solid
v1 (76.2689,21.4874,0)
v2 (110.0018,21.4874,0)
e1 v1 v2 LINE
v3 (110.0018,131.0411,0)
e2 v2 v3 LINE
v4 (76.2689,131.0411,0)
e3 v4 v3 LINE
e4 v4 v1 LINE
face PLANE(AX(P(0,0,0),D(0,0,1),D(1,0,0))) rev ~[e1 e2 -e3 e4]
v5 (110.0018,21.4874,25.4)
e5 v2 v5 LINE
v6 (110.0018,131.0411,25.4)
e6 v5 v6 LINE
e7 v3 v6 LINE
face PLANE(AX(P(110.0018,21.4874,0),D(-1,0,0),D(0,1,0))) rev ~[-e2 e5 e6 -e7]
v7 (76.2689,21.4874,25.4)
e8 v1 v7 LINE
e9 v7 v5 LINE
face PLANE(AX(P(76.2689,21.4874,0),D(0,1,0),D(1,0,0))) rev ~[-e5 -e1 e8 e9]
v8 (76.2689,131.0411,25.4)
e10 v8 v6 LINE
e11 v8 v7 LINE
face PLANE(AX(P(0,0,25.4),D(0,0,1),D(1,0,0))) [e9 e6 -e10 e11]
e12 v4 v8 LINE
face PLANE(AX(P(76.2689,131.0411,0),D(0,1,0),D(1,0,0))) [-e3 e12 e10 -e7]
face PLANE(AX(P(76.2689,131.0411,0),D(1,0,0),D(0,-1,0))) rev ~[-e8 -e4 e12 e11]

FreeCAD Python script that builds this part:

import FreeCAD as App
import Part
import Sketcher

V = App.Vector
Q = App.Units.Quantity


def add_polygon(sketch, points):
    """Adds a closed chain of lines whose ends are joined by coincident constraints."""
    first, n = sketch.GeometryCount, len(points)
    for a, b in zip(points, points[1:] + points[:1]):
        sketch.addGeometry(Part.LineSegment(App.Vector(*a, 0), App.Vector(*b, 0)), False)
    for i in range(n):
        sketch.addConstraint(Sketcher.Constraint("Coincident", first + i, 2, first + (i + 1) % n, 1))

doc = App.newDocument("Part")
body = doc.addObject("PartDesign::Body", "Body")

# Sketch on XY plane
sketch1 = body.newObject("Sketcher::SketchObject", "Sketch")
sketch1.AttachmentSupport = (doc.getObject("XY_Plane"), [""])
sketch1.MapMode = "FlatFace"
add_polygon(sketch1, [(76, 131), (76, 21), (110, 21), (110, 131)])  # lines 0-3
sketch1.addConstraint([
    Sketcher.Constraint("Vertical", 0),
    Sketcher.Constraint("Horizontal", 1),
    Sketcher.Constraint("Vertical", 2),
    Sketcher.Constraint("Horizontal", 3),
    Sketcher.Constraint("DistanceX", 1, 1, 1, 2, Q("33.733 mm")),
    Sketcher.Constraint("DistanceY", 0, 2, 0, 1, Q("109.5537 mm")),
    Sketcher.Constraint("DistanceY", -1, 1, 2, 2, Q("5.1591 in")),
    Sketcher.Constraint("DistanceX", -1, 1, 0, 2, Q("76.269 mm")),
])
pad1 = body.newObject("PartDesign::Pad", "Pad")
pad1.Profile = sketch1
pad1.Length = Q("1 in")

doc.recompute()
